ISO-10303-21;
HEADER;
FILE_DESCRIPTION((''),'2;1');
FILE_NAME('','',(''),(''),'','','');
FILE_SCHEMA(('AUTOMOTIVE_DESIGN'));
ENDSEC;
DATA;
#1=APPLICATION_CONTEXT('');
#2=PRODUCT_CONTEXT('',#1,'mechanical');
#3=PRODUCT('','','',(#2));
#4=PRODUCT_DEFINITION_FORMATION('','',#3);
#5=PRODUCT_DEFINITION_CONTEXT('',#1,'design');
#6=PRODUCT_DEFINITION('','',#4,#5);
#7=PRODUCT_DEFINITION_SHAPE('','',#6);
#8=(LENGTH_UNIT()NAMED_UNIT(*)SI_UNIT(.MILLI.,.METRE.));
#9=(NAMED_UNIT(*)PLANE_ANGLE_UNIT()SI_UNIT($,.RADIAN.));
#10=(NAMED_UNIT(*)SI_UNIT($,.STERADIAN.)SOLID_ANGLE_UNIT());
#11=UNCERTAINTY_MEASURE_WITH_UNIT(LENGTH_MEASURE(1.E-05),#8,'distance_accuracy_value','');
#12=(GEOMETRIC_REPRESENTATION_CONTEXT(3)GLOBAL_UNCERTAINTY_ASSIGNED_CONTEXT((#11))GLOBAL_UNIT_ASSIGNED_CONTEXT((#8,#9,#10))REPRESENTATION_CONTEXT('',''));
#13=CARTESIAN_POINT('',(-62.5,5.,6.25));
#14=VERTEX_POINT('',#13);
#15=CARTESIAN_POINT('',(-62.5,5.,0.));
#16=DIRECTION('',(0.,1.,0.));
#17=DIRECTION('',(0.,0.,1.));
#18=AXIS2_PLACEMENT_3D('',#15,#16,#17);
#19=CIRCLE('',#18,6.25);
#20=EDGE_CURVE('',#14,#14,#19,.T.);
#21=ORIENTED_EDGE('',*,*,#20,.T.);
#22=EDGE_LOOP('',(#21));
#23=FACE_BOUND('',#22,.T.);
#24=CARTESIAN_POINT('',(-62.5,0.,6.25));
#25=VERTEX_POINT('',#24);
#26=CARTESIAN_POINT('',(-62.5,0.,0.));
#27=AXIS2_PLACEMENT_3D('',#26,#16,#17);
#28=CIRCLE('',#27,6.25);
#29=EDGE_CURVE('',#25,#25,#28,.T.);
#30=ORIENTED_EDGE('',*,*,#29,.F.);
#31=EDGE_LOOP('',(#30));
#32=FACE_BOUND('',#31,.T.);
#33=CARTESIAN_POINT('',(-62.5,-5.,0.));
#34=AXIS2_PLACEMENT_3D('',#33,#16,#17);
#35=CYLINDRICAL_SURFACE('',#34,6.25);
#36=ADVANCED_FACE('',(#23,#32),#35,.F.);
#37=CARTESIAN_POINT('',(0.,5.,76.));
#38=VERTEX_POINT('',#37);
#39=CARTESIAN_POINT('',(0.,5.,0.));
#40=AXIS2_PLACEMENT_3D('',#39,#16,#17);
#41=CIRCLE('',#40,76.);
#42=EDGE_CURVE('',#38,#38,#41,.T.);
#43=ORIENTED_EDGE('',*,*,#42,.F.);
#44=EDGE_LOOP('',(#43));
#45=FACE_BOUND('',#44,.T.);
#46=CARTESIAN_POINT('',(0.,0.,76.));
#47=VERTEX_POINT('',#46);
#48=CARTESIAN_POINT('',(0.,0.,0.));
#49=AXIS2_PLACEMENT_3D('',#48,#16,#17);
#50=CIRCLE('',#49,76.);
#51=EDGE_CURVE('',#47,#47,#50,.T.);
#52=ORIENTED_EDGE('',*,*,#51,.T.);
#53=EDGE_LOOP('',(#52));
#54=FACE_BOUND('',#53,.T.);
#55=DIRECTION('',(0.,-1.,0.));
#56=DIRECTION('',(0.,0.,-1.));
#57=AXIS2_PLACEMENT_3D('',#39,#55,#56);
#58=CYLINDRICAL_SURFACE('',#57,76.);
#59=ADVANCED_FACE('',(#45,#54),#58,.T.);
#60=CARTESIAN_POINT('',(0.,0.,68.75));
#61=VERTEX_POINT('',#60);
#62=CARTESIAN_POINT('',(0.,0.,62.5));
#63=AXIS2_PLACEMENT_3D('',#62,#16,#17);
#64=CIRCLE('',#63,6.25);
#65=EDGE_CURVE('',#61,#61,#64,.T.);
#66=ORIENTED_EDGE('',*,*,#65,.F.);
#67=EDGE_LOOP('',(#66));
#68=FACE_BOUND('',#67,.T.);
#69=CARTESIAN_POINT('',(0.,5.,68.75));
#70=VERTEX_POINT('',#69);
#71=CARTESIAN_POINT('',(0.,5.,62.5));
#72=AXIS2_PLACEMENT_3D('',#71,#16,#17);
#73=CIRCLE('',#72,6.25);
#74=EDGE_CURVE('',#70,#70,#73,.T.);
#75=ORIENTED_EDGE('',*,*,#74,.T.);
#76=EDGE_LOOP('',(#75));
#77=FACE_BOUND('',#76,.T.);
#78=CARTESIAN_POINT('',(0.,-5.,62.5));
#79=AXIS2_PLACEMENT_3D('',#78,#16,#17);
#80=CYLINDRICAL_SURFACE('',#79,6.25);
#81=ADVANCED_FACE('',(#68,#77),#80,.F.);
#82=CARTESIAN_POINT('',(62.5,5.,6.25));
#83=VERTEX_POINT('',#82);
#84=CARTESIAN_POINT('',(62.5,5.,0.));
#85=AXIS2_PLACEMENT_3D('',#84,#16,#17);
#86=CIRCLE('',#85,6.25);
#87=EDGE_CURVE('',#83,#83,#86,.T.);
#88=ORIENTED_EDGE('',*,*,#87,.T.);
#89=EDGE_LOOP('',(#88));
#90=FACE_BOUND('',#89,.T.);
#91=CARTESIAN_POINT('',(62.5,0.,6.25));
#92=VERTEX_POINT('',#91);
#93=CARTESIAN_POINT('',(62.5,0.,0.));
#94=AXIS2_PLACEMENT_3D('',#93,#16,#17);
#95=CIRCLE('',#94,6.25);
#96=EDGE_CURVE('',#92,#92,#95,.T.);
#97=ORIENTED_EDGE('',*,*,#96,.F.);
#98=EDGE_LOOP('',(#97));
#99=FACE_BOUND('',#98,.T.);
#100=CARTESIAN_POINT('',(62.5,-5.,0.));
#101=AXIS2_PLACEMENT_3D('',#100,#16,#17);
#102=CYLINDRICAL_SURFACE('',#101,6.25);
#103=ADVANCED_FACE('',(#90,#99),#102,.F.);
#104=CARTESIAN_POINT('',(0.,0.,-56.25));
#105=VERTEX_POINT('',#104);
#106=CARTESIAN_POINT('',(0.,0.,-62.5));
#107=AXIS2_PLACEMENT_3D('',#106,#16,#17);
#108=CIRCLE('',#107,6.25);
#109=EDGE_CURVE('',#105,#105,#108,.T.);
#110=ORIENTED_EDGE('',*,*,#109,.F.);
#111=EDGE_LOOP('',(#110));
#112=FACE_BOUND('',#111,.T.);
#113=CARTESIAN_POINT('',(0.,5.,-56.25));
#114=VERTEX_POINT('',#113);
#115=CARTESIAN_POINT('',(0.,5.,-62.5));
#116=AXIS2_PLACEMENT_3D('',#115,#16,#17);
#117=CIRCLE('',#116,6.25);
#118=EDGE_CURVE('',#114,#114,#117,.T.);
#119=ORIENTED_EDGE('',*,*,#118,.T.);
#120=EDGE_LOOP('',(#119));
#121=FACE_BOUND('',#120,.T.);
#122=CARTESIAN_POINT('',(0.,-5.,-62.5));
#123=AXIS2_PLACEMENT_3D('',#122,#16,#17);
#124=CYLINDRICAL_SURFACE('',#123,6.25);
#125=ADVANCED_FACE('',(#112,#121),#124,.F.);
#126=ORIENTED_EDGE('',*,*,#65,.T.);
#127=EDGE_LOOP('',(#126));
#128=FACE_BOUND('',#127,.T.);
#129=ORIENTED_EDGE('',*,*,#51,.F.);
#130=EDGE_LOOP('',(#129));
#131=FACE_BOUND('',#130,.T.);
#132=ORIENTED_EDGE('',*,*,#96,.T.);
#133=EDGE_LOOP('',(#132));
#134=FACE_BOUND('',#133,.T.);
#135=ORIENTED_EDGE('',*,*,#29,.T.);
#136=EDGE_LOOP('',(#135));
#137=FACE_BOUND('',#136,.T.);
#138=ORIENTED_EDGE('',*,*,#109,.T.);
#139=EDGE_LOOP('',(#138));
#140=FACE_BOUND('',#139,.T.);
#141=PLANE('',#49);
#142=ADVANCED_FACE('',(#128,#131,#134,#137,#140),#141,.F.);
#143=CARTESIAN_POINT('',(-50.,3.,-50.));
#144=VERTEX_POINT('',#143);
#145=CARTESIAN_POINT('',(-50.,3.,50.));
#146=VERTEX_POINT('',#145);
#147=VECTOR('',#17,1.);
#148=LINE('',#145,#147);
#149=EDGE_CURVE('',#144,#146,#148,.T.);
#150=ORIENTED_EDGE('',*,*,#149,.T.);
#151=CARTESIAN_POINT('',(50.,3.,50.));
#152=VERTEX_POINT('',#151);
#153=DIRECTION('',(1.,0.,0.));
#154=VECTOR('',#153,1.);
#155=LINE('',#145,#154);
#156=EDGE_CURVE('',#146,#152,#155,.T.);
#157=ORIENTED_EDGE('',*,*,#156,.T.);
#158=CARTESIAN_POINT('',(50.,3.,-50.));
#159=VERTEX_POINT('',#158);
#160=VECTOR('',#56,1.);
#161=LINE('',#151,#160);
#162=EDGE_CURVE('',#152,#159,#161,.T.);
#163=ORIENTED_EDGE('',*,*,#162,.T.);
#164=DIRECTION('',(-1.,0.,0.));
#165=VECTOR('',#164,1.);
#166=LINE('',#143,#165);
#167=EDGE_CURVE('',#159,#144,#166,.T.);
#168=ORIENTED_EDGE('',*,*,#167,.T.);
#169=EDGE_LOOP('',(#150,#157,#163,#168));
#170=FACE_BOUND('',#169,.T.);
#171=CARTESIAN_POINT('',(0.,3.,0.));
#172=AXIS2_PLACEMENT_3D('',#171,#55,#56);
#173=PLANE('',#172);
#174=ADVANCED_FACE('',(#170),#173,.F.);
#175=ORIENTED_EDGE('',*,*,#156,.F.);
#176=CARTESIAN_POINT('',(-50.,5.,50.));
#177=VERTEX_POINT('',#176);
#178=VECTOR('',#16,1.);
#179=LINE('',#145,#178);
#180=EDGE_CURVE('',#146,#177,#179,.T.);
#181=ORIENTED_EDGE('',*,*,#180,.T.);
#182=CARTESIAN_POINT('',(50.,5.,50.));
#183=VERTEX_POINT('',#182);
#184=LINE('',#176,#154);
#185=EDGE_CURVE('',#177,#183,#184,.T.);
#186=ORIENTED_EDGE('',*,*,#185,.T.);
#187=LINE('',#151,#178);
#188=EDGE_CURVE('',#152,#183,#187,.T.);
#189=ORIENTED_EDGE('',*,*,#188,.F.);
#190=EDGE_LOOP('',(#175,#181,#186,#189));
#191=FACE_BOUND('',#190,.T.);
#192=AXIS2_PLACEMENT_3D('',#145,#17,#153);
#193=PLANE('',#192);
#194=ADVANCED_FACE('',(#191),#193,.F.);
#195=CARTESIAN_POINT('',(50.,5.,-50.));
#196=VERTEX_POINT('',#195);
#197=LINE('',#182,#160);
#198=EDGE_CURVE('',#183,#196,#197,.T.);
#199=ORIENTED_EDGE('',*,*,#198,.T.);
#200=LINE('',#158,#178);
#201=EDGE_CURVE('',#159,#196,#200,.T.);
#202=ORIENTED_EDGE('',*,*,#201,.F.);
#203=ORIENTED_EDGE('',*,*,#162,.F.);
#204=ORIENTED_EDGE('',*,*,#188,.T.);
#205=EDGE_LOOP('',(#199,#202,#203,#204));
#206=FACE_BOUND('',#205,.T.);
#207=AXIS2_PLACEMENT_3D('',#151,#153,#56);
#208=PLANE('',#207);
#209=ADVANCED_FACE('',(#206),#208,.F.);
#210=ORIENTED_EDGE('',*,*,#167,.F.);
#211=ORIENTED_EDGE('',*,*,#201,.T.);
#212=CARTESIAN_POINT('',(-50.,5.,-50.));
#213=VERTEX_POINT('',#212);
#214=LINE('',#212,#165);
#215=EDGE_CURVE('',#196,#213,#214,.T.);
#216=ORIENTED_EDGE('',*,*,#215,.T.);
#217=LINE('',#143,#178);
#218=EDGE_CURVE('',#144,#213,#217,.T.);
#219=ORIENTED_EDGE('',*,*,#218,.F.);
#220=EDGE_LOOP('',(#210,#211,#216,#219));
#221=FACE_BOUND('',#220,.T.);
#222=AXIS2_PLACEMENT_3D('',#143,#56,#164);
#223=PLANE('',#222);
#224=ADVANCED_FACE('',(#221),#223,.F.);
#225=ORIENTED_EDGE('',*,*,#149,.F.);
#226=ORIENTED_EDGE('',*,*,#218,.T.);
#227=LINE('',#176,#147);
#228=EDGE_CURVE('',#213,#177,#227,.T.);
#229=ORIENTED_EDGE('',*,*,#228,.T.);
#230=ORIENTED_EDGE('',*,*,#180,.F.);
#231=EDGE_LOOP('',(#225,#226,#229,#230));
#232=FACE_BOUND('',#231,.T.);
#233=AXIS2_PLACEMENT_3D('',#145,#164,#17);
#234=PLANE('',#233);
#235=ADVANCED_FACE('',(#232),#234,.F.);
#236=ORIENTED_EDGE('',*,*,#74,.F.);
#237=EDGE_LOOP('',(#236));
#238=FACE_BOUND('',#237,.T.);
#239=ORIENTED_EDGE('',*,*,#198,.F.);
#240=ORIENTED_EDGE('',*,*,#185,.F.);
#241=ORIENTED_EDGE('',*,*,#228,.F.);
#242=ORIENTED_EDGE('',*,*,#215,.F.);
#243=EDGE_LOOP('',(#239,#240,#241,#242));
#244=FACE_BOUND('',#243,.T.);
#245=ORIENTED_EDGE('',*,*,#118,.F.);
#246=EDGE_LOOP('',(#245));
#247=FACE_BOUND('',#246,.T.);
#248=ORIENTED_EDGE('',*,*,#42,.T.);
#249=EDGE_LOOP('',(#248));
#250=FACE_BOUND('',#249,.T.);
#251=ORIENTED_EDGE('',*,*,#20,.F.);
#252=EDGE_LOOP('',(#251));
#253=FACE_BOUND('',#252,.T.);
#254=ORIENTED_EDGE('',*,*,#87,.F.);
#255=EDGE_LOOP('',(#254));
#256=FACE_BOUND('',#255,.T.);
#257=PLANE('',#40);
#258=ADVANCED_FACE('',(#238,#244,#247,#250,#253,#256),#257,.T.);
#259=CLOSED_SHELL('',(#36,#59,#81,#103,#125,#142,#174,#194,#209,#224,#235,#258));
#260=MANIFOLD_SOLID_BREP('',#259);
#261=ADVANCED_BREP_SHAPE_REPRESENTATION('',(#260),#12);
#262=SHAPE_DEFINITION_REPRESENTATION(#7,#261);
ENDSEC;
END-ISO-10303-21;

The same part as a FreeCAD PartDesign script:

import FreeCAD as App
import Part
import Sketcher
Q = App.Units.Quantity

doc = App.newDocument("Part")
body = doc.addObject("PartDesign::Body", "Body")

sketch1 = body.newObject("Sketcher::SketchObject", "Sketch")
sketch1.AttachmentSupport = (doc.getObject("XZ_Plane"), [""])
sketch1.MapMode = "FlatFace"
sketch1.addGeometry(Part.Circle(App.Vector(0, 0, 0), App.Vector(0, 0, 1), 76), False)
sketch1.addGeometry(Part.LineSegment(App.Vector(50, 50, 0), App.Vector(-50, 50, 0)), False)
sketch1.addGeometry(Part.LineSegment(App.Vector(-50, 50, 0), App.Vector(-50, -50, 0)), False)
sketch1.addGeometry(Part.LineSegment(App.Vector(-50, -50, 0), App.Vector(50, -50, 0)), False)
sketch1.addGeometry(Part.LineSegment(App.Vector(50, -50, 0), App.Vector(50, 50, 0)), False)
sketch1.addConstraint(Sketcher.Constraint("Coincident", 1, 2, 2, 1))
sketch1.addConstraint(Sketcher.Constraint("Coincident", 2, 2, 3, 1))
sketch1.addConstraint(Sketcher.Constraint("Coincident", 3, 2, 4, 1))
sketch1.addConstraint(Sketcher.Constraint("Coincident", 4, 2, 1, 1))
sketch1.addConstraint(Sketcher.Constraint("Horizontal", 1))
sketch1.addConstraint(Sketcher.Constraint("Vertical", 2))
sketch1.addConstraint(Sketcher.Constraint("Horizontal", 3))
sketch1.addConstraint(Sketcher.Constraint("Vertical", 4))
sketch1.addConstraint(Sketcher.Constraint("Coincident", 0, 3, -1, 1))
sketch1.addConstraint(Sketcher.Constraint("Symmetric", 1, 2, 3, 2, -1, 1))
sketch1.addConstraint(Sketcher.Constraint("Equal", 3, 2))
sketch1.addConstraint(Sketcher.Constraint("Diameter", 0, Q("152 mm")))
sketch1.addConstraint(Sketcher.Constraint("DistanceX", 1, 2, 1, 1, Q("100 mm")))
pad1 = body.newObject("PartDesign::Pad", "Pad")
pad1.Profile = sketch1
pad1.Length = 5
pad1.Reversed = True

sketch2 = body.newObject("Sketcher::SketchObject", "Sketch001")
sketch2.AttachmentSupport = (doc.getObject("XZ_Plane"), [""])
sketch2.MapMode = "FlatFace"
sketch2.AttachmentOffset = App.Placement(App.Vector(0, 0, -5), App.Rotation())
sketch2.addGeometry(Part.LineSegment(App.Vector(-50, -50, 0), App.Vector(-50, 50, 0)), False)
sketch2.addGeometry(Part.LineSegment(App.Vector(-50, 50, 0), App.Vector(50, 50, 0)), False)
sketch2.addGeometry(Part.LineSegment(App.Vector(50, 50, 0), App.Vector(50, -50, 0)), False)
sketch2.addGeometry(Part.LineSegment(App.Vector(50, -50, 0), App.Vector(-50, -50, 0)), False)
sketch2.addConstraint(Sketcher.Constraint("Coincident", 0, 2, 1, 1))
sketch2.addConstraint(Sketcher.Constraint("Coincident", 1, 2, 2, 1))
sketch2.addConstraint(Sketcher.Constraint("Coincident", 2, 2, 3, 1))
sketch2.addConstraint(Sketcher.Constraint("Coincident", 3, 2, 0, 1))
sketch2.addConstraint(Sketcher.Constraint("Vertical", 0))
sketch2.addConstraint(Sketcher.Constraint("Horizontal", 1))
sketch2.addConstraint(Sketcher.Constraint("Vertical", 2))
sketch2.addConstraint(Sketcher.Constraint("Horizontal", 3))
sketch2.addConstraint(Sketcher.Constraint("Symmetric", 0, 2, 2, 2, -1, 1))
sketch2.addConstraint(Sketcher.Constraint("Equal", 3, 0))
sketch2.addConstraint(Sketcher.Constraint("DistanceX", 1, 1, 1, 2, Q("100 mm")))
pad2 = body.newObject("PartDesign::Pad", "Pad001")
pad2.Profile = sketch2
pad2.Length = 5

sketch3 = body.newObject("Sketcher::SketchObject", "Sketch002")
sketch3.AttachmentSupport = (doc.getObject("XZ_Plane"), [""])
sketch3.MapMode = "FlatFace"
sketch3.AttachmentOffset = App.Placement(App.Vector(0, 0, -5), App.Rotation())
sketch3.addGeometry(Part.LineSegment(App.Vector(-50, -50, 0), App.Vector(-50, 50, 0)), False)
sketch3.addGeometry(Part.LineSegment(App.Vector(-50, 50, 0), App.Vector(50, 50, 0)), False)
sketch3.addGeometry(Part.LineSegment(App.Vector(50, 50, 0), App.Vector(50, -50, 0)), False)
sketch3.addGeometry(Part.LineSegment(App.Vector(50, -50, 0), App.Vector(-50, -50, 0)), False)
sketch3.addConstraint(Sketcher.Constraint("Coincident", 0, 2, 1, 1))
sketch3.addConstraint(Sketcher.Constraint("Coincident", 1, 2, 2, 1))
sketch3.addConstraint(Sketcher.Constraint("Coincident", 2, 2, 3, 1))
sketch3.addConstraint(Sketcher.Constraint("Coincident", 3, 2, 0, 1))
sketch3.addConstraint(Sketcher.Constraint("Vertical", 0))
sketch3.addConstraint(Sketcher.Constraint("Horizontal", 1))
sketch3.addConstraint(Sketcher.Constraint("Vertical", 2))
sketch3.addConstraint(Sketcher.Constraint("Horizontal", 3))
sketch3.addConstraint(Sketcher.Constraint("Symmetric", 0, 2, 2, 2, -1, 1))
sketch3.addConstraint(Sketcher.Constraint("Equal", 3, 0))
sketch3.addConstraint(Sketcher.Constraint("DistanceX", 1, 1, 1, 2, Q("100 mm")))
pocket1 = body.newObject("PartDesign::Pocket", "Pocket")
pocket1.Profile = sketch3
pocket1.Length = 2
pocket1.Reversed = True

sketch4 = body.newObject("Sketcher::SketchObject", "Sketch003")
sketch4.AttachmentSupport = (doc.getObject("XZ_Plane"), [""])
sketch4.MapMode = "FlatFace"
sketch4.AttachmentOffset = App.Placement(App.Vector(0, 0, -5), App.Rotation())
sketch4.addGeometry(Part.Circle(App.Vector(0, -62, 0), App.Vector(0, 0, 1), 6), False)
sketch4.addGeometry(Part.Circle(App.Vector(62, 0, 0), App.Vector(0, 0, 1), 6), False)
sketch4.addGeometry(Part.Circle(App.Vector(0, 62, 0), App.Vector(0, 0, 1), 6), False)
sketch4.addGeometry(Part.Circle(App.Vector(-62, 0, 0), App.Vector(0, 0, 1), 6), False)
sketch4.addConstraint(Sketcher.Constraint("Equal", 0, 1))
sketch4.addConstraint(Sketcher.Constraint("Equal", 1, 2))
sketch4.addConstraint(Sketcher.Constraint("Equal", 2, 3))
sketch4.addConstraint(Sketcher.Constraint("Symmetric", 0, 3, 2, 3, -1, 1))
sketch4.addConstraint(Sketcher.Constraint("Symmetric", 1, 3, 3, 3, -1, 1))
sketch4.addConstraint(Sketcher.Constraint("PointOnObject", 0, 3, -2))
sketch4.addConstraint(Sketcher.Constraint("PointOnObject", 1, 3, -1))
sketch4.addConstraint(Sketcher.Constraint("Diameter", 0, Q("12.5 mm")))
sketch4.addConstraint(Sketcher.Constraint("DistanceY", 0, 3, 2, 3, Q("125 mm")))
sketch4.addConstraint(Sketcher.Constraint("DistanceX", 3, 3, 1, 3, Q("125 mm")))
pocket2 = body.newObject("PartDesign::Pocket", "Pocket001")
pocket2.Profile = sketch4
pocket2.Length = 10
pocket2.Reversed = True

doc.recompute()
